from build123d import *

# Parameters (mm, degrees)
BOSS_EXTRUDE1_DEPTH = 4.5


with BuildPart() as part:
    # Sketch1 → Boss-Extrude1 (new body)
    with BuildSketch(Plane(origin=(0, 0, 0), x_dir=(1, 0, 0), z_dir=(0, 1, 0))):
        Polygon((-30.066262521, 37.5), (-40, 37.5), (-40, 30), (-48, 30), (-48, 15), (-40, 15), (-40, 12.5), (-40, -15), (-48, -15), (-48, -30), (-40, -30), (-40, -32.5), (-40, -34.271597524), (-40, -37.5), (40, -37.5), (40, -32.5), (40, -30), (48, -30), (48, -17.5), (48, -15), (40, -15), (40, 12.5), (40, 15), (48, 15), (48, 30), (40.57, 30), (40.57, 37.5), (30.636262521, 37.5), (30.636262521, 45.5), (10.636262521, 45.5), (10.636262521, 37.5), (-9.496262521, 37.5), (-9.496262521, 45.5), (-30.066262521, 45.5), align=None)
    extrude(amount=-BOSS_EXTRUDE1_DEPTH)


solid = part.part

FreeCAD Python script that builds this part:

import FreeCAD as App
import Part
import Sketcher
Q = App.Units.Quantity


def add_polygon(sketch, points):
    """Adds a closed chain of lines whose ends are joined by coincident constraints."""
    first, n = sketch.GeometryCount, len(points)
    for a, b in zip(points, points[1:] + points[:1]):
        sketch.addGeometry(Part.LineSegment(App.Vector(*a, 0), App.Vector(*b, 0)), False)
    for i in range(n):
        sketch.addConstraint(Sketcher.Constraint("Coincident", first + i, 2, first + (i + 1) % n, 1))

doc = App.newDocument("Part")
body = doc.addObject("PartDesign::Body", "Body")

# Sketch on XZ plane
sketch1 = body.newObject("Sketcher::SketchObject", "Sketch")
sketch1.AttachmentSupport = (doc.getObject("XZ_Plane"), [""])
sketch1.MapMode = "FlatFace"
add_polygon(sketch1, [(-30, -38), (-40, -38), (-40, -30), (-48, -30), (-48, -15), (-40, -15), (-40, 15), (-48, 15), (-48, 30), (-40, 30), (-40, 38), (40, 38), (40, 30), (48, 30), (48, 15), (40, 15), (40, -15), (48, -15), (48, -30), (41, -30), (41, -38), (31, -38), (31, -46), (11, -46), (11, -38), (-9, -38), (-9, -46), (-30, -46)])  # lines 0-27
sketch1.addConstraint([
    Sketcher.Constraint("Horizontal", 0),
    Sketcher.Constraint("Vertical", 1),
    Sketcher.Constraint("Horizontal", 2),
    Sketcher.Constraint("Vertical", 3),
    Sketcher.Constraint("Horizontal", 4),
    Sketcher.Constraint("Vertical", 5),
    Sketcher.Constraint("Horizontal", 6),
    Sketcher.Constraint("Vertical", 7),
    Sketcher.Constraint("Horizontal", 8),
    Sketcher.Constraint("Vertical", 9),
    Sketcher.Constraint("Horizontal", 10),
    Sketcher.Constraint("Vertical", 11),
    Sketcher.Constraint("Horizontal", 12),
    Sketcher.Constraint("Vertical", 13),
    Sketcher.Constraint("Horizontal", 14),
    Sketcher.Constraint("Vertical", 15),
    Sketcher.Constraint("Horizontal", 16),
    Sketcher.Constraint("Vertical", 17),
    Sketcher.Constraint("Horizontal", 18),
    Sketcher.Constraint("Vertical", 19),
    Sketcher.Constraint("Horizontal", 20),
    Sketcher.Constraint("Vertical", 21),
    Sketcher.Constraint("Horizontal", 22),
    Sketcher.Constraint("Vertical", 23),
    Sketcher.Constraint("Horizontal", 24),
    Sketcher.Constraint("Vertical", 25),
    Sketcher.Constraint("Horizontal", 26),
    Sketcher.Constraint("Vertical", 27),
    Sketcher.Constraint("Symmetric", 0, 2, 10, 2, -1, 1),
    Sketcher.Constraint("Symmetric", 2, 2, 12, 2, -1, 1),
    Sketcher.Constraint("Symmetric", 4, 2, 14, 2, -1, 1),
    Sketcher.Constraint("Symmetric", 6, 2, 16, 2, -1, 1),
    Sketcher.Constraint("Symmetric", 8, 2, 11, 2, -2),
    Sketcher.Constraint("Symmetric", 6, 2, 13, 2, -2),
    Sketcher.Constraint("Horizontal", 2, 2, 17, 2),
    Sketcher.Constraint("Horizontal", 0, 2, 19, 2),
    Sketcher.Constraint("Horizontal", 20, 2, 23, 2),
    Sketcher.Constraint("Horizontal", 22, 2, 25, 2),
    Sketcher.Constraint("Vertical", 1, 2, 4, 2),
    Sketcher.Constraint("Equal", 0, 20),
    Sketcher.Constraint("Equal", 16, 21),
    Sketcher.Constraint("DistanceX", 2, 2, 2, 1, Q("8 mm")),
    Sketcher.Constraint("DistanceX", 10, 1, 10, 2, Q("80 mm")),
    Sketcher.Constraint("DistanceX", 22, 2, 22, 1, Q("20 mm")),
    Sketcher.Constraint("DistanceY", 3, 1, 3, 2, Q("15 mm")),
    Sketcher.Constraint("DistanceY", 5, 1, 5, 2, Q("30 mm")),
    Sketcher.Constraint("DistanceY", 1, 1, 1, 2, Q("7.5 mm")),
    Sketcher.Constraint("DistanceX", 18, 2, 18, 1, Q("7.43 mm")),
    Sketcher.Constraint("DistanceX", 26, 2, 26, 1, Q("20.57 mm")),
    Sketcher.Constraint("DistanceX", 0, 2, 0, 1, Q("9.933737 mm")),
])
pad1 = body.newObject("PartDesign::Pad", "Pad")
pad1.Profile = sketch1
pad1.Length = 4.5

doc.recompute()
